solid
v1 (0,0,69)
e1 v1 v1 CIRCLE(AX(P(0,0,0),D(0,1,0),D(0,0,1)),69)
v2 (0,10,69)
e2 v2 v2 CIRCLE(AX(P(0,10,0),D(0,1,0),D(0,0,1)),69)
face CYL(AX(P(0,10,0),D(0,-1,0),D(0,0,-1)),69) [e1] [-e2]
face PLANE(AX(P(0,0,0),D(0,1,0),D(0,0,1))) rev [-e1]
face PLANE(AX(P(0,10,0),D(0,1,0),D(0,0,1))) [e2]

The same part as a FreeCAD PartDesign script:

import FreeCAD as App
import Part
import Sketcher

V = App.Vector
Q = App.Units.Quantity

doc = App.newDocument("Part")
body = doc.addObject("PartDesign::Body", "Body")

# Sketch on XZ plane
sketch1 = body.newObject("Sketcher::SketchObject", "Sketch")
sketch1.AttachmentSupport = (doc.getObject("XZ_Plane"), [""])
sketch1.MapMode = "FlatFace"
sketch1.addGeometry(Part.Circle(V(0, 0, 0), V(0, 0, 1), 69), False)
sketch1.addConstraint([
    Sketcher.Constraint("Coincident", 0, 3, -1, 1),
    Sketcher.Constraint("Diameter", 0, Q("138 mm")),
])
pad1 = body.newObject("PartDesign::Pad", "Pad")
pad1.Profile = sketch1
pad1.Length = 10
pad1.Reversed = True

doc.recompute()
